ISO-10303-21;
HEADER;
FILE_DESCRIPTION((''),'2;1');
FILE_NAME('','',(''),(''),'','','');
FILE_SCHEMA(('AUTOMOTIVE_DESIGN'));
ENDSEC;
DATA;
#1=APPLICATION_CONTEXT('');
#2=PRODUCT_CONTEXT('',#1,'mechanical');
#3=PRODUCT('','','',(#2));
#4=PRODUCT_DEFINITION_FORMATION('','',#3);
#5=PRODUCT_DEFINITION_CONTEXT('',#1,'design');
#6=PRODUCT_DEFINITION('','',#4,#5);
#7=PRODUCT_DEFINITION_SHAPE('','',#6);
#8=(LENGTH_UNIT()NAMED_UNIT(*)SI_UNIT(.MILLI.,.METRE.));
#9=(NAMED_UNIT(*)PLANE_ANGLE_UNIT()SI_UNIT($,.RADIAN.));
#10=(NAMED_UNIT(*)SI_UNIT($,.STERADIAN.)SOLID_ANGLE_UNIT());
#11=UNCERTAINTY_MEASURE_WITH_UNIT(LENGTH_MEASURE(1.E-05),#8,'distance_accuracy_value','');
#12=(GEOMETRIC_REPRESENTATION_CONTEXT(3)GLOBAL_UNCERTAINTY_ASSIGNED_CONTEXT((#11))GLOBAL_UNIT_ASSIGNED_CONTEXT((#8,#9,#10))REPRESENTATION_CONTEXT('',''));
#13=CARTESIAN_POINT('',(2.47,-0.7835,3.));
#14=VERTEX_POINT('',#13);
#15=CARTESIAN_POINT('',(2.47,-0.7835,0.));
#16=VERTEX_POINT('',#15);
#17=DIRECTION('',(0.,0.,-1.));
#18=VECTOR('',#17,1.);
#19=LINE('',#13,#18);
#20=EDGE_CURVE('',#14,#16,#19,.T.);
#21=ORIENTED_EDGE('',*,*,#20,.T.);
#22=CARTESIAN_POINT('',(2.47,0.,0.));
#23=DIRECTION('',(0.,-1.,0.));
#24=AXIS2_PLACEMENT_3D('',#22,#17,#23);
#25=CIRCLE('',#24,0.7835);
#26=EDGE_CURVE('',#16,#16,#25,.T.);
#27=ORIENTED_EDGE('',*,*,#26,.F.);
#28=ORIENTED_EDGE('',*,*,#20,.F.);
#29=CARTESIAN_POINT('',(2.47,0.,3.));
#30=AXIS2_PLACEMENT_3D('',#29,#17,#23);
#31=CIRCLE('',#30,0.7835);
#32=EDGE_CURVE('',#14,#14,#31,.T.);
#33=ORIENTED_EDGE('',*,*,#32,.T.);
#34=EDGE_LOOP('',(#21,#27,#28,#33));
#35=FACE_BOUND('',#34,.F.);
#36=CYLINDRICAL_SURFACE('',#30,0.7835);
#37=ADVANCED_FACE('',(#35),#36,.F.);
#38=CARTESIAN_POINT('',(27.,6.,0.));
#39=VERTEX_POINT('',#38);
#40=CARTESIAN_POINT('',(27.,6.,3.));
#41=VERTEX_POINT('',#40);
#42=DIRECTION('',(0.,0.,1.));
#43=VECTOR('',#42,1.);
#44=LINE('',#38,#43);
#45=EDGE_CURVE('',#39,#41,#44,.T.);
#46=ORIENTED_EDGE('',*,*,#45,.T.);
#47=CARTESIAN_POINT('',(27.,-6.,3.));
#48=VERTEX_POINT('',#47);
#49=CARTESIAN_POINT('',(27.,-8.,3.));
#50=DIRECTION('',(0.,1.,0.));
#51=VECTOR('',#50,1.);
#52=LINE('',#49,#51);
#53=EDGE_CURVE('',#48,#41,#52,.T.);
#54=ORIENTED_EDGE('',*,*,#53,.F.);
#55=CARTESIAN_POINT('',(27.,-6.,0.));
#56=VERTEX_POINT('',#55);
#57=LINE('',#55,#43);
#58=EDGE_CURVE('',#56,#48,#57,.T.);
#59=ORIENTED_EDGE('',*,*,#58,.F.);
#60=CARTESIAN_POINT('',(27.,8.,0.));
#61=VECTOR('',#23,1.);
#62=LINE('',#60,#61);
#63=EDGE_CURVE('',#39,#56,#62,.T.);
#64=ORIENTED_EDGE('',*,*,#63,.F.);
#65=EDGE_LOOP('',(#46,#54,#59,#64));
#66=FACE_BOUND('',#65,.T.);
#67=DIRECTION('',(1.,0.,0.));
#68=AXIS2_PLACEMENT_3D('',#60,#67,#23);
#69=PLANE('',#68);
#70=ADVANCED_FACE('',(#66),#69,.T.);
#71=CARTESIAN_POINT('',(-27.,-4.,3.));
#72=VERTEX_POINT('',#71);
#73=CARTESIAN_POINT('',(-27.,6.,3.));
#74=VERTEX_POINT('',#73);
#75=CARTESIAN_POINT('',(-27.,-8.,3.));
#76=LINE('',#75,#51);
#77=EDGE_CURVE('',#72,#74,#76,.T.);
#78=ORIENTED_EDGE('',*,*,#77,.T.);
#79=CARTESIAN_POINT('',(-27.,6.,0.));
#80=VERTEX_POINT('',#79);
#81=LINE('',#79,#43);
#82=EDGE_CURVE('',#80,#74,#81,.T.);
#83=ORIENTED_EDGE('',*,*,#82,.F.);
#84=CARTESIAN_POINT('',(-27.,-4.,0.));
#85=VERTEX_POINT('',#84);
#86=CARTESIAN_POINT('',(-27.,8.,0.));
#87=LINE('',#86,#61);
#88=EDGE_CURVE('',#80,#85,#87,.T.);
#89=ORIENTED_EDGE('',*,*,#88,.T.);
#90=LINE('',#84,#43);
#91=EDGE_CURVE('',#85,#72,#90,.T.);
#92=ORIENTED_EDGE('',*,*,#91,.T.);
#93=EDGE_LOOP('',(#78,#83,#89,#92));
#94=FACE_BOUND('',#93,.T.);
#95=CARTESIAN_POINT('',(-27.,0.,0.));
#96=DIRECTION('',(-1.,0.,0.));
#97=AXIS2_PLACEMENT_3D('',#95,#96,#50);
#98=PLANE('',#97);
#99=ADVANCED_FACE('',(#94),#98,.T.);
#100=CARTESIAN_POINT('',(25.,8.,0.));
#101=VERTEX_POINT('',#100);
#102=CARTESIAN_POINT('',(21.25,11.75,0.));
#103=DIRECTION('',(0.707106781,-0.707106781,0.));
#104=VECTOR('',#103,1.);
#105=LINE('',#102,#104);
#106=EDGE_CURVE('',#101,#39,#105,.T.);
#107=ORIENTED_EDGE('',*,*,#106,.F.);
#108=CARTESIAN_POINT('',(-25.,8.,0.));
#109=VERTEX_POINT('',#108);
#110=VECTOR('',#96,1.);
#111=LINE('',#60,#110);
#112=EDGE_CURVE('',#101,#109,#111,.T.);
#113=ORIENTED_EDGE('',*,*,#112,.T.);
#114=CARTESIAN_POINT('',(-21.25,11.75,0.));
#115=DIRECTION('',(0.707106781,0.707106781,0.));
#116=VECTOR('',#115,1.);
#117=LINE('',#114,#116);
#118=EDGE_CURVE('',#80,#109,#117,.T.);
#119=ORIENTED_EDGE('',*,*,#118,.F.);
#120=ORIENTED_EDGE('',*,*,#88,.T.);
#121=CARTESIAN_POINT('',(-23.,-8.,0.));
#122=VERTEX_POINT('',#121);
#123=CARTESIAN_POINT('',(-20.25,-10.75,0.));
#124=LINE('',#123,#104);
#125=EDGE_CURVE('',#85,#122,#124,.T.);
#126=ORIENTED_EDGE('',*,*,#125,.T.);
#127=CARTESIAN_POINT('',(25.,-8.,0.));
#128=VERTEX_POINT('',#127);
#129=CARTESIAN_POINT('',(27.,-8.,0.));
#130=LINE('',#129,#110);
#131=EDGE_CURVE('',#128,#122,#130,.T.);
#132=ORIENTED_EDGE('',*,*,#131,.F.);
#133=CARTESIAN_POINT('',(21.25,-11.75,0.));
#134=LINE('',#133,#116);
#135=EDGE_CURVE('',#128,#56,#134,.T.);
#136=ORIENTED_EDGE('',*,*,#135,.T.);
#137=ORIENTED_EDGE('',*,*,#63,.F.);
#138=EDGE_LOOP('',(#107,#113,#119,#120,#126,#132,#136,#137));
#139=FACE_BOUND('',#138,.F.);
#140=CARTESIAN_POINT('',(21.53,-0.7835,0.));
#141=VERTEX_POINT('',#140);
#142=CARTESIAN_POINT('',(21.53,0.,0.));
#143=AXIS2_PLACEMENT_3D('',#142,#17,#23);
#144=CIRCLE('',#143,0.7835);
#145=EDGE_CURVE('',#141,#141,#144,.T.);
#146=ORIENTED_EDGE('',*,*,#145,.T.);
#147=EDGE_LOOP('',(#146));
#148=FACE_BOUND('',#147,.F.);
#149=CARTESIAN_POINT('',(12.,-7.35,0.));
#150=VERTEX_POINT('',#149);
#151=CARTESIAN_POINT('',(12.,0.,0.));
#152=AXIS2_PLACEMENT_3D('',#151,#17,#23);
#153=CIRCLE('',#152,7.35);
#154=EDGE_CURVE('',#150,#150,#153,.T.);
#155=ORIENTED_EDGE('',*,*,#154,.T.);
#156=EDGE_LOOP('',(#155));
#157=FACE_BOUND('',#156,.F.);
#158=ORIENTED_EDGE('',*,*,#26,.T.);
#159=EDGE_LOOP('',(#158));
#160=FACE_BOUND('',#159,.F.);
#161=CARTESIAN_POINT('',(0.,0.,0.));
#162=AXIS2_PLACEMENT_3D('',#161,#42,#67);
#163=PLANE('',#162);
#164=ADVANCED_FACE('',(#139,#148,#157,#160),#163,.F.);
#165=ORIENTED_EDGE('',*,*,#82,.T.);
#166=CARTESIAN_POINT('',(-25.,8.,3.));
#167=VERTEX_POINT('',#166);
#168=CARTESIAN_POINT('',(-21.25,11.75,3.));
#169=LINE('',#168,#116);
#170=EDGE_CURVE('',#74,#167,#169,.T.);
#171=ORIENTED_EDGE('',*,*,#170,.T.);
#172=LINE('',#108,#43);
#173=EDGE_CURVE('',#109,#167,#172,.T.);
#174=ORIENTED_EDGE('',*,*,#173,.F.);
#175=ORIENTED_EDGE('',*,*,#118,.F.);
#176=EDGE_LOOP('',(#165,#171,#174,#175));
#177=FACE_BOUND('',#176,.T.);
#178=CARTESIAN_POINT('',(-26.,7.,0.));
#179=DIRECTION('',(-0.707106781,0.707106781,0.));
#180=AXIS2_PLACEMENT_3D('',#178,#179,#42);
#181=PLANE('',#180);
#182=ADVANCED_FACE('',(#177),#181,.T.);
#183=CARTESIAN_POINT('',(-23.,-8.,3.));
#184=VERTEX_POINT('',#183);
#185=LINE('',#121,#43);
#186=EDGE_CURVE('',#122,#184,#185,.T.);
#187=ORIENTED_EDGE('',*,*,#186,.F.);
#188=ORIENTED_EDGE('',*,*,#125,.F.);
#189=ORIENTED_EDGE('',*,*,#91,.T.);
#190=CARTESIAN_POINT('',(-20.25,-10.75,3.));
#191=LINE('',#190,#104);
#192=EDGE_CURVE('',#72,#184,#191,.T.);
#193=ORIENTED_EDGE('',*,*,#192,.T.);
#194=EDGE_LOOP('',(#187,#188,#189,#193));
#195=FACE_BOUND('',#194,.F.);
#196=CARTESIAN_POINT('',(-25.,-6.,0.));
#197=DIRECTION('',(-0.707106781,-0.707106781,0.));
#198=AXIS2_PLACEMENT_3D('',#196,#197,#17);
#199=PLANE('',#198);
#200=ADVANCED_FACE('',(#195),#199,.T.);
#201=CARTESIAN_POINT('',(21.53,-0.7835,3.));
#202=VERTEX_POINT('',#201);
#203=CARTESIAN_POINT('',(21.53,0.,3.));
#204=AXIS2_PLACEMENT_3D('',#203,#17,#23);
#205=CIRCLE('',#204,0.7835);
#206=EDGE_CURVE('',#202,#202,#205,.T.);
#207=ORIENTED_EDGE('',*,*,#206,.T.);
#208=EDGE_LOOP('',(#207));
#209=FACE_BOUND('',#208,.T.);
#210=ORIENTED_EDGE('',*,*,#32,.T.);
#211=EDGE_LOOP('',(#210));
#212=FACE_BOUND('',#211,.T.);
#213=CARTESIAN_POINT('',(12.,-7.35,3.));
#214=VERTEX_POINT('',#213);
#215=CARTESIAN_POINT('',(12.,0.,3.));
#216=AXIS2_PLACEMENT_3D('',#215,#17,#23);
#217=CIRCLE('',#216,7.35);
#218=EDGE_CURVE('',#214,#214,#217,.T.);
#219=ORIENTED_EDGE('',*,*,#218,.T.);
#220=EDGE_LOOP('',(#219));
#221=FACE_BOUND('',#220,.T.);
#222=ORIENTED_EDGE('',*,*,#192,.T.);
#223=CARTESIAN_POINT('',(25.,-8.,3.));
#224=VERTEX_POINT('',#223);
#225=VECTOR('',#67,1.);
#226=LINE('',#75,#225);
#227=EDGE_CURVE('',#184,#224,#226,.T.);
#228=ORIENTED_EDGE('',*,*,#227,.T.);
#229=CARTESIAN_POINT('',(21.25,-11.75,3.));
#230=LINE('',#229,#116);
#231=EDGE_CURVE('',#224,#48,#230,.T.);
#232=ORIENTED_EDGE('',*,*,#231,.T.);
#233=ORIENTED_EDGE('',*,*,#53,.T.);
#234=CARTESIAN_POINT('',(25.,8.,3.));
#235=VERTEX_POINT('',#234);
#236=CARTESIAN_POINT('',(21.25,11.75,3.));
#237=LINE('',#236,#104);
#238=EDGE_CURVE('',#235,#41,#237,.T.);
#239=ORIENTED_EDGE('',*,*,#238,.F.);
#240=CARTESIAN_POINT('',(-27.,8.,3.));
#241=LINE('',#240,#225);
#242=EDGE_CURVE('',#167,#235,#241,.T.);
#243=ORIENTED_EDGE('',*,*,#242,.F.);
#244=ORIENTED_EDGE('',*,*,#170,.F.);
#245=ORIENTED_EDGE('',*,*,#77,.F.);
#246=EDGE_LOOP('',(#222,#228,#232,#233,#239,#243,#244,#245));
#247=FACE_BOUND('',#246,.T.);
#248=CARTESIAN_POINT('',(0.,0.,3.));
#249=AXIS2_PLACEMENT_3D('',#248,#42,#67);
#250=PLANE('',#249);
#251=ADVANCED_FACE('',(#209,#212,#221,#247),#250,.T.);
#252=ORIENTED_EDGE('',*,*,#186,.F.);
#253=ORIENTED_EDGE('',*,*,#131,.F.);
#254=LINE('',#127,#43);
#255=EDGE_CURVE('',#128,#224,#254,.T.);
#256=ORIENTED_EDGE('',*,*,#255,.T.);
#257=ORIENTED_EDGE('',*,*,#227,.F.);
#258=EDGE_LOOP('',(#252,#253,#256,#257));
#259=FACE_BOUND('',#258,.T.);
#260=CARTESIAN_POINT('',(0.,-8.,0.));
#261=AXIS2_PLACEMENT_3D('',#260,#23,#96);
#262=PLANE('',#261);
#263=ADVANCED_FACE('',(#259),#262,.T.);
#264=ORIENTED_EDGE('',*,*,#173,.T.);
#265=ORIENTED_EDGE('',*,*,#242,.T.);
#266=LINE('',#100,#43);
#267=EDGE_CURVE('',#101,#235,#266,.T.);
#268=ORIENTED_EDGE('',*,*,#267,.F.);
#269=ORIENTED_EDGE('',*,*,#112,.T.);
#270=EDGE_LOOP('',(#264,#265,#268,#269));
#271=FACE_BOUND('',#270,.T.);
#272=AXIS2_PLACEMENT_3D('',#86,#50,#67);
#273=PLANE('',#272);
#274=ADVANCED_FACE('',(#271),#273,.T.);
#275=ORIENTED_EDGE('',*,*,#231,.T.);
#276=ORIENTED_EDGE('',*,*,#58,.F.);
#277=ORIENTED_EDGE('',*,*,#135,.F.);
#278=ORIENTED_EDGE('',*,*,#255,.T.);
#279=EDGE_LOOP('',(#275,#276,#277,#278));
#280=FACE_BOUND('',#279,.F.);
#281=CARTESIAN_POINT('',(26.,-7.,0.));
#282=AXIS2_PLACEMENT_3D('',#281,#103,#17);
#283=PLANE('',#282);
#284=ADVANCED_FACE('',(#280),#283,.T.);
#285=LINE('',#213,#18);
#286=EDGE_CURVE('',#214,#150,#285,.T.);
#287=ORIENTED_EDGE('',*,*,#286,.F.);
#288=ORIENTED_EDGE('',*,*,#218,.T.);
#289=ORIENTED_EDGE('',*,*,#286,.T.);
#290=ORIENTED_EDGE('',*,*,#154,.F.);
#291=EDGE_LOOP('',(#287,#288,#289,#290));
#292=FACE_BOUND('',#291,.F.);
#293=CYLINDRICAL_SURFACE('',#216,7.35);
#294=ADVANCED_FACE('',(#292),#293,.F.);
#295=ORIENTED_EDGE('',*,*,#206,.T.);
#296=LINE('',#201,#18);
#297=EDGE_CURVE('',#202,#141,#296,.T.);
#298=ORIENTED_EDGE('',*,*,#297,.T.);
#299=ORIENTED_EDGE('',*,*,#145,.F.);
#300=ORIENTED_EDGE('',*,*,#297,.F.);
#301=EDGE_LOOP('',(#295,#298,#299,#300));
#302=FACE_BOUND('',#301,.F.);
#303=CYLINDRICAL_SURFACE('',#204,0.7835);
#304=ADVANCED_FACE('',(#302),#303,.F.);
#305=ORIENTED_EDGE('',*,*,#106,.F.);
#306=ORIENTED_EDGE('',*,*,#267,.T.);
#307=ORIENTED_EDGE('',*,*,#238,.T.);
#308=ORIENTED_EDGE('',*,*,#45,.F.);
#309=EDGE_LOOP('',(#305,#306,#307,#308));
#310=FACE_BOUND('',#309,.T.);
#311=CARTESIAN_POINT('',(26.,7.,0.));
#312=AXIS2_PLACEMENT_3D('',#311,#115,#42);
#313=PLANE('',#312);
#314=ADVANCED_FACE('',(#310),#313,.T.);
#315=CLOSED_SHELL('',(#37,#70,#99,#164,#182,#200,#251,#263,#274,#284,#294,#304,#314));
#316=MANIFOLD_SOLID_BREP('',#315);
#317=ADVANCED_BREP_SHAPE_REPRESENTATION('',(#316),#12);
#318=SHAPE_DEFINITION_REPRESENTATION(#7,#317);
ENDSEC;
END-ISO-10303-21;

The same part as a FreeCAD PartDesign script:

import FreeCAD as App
import Part
import Sketcher


def edges_at(feature, points):
    """Names of the edges that pass closest to the given points."""
    edges = feature.Shape.Edges
    near = lambda p: min(range(len(edges)), key=lambda i: edges[i].distToShape(Part.Vertex(*p))[0])
    return sorted({f"Edge{near(p) + 1}" for p in points})


def add_polygon(sketch, points):
    """Adds a closed chain of lines whose ends are joined by coincident constraints."""
    first, n = sketch.GeometryCount, len(points)
    for a, b in zip(points, points[1:] + points[:1]):
        sketch.addGeometry(Part.LineSegment(App.Vector(*a, 0), App.Vector(*b, 0)), False)
    for i in range(n):
        sketch.addConstraint(Sketcher.Constraint("Coincident", first + i, 2, first + (i + 1) % n, 1))

doc = App.newDocument("Part")
params = doc.addObject("Spreadsheet::Sheet", "Params")
for row, (alias, value) in enumerate([
    ("sketch1_width", "54 mm"),
    ("sketch1_height", "16 mm"),
    ("pad1_length", "3 mm"),
    ("sketch2_diameter", "14.7 mm"),
    ("hole_diameter", "14.7 mm"),
    ("chamfer_size", "2 mm"),
    ("chamfer2_size", "4 mm"),
    ("hole2_diameter", "1.567 mm"),
], start=1):
    params.set(f"A{row}", alias)
    params.set(f"B{row}", "=" + value)
    params.setAlias(f"B{row}", alias)

body = doc.addObject("PartDesign::Body", "Body")

sketch1 = body.newObject("Sketcher::SketchObject", "Sketch")
sketch1.AttachmentSupport = (doc.getObject("XY_Plane"), [""])
sketch1.MapMode = "FlatFace"
add_polygon(sketch1, [(-27, 8), (-27, -8), (27, -8), (27, 8)])
sketch1.addConstraint(Sketcher.Constraint("Vertical", 0))
sketch1.addConstraint(Sketcher.Constraint("Horizontal", 1))
sketch1.addConstraint(Sketcher.Constraint("Vertical", 2))
sketch1.addConstraint(Sketcher.Constraint("Horizontal", 3))
sketch1.addConstraint(Sketcher.Constraint("Symmetric", 0, 2, 2, 2, -1, 1))
sketch1.addConstraint(Sketcher.Constraint("DistanceX", 1, 1, 1, 2, 54.0))
sketch1.addConstraint(Sketcher.Constraint("DistanceY", 0, 2, 0, 1, 16.0))
sketch1.setExpression("Constraints[9]", "Params.sketch1_width")
sketch1.setExpression("Constraints[10]", "Params.sketch1_height")
pad1 = body.newObject("PartDesign::Pad", "Pad")
pad1.Profile = sketch1
pad1.setExpression("Length", "Params.pad1_length")

sketch2 = body.newObject("Sketcher::SketchObject", "Sketch001")
sketch2.AttachmentSupport = (doc.getObject("XY_Plane"), [""])
sketch2.MapMode = "FlatFace"
sketch2.AttachmentOffset = App.Placement(App.Vector(0, 0, 3), App.Rotation())
sketch2.addGeometry(Part.Circle(App.Vector(12, 0, 0), App.Vector(0, 0, 1), 7.35), False)
sketch2.addConstraint(Sketcher.Constraint("PointOnObject", 0, 3, -1))
sketch2.addConstraint(Sketcher.Constraint("Diameter", 0, 14.7))
sketch2.addConstraint(Sketcher.Constraint("DistanceX", -1, 1, 0, 3, 12.0))
sketch2.setExpression("Constraints[1]", "Params.sketch2_diameter")
doc.recompute()
hole = body.newObject("PartDesign::Hole", "Hole")
hole.Profile = sketch2
hole.ThreadType = "None"
hole.setExpression("Diameter", "Params.hole_diameter")
hole.DepthType = "ThroughAll"
doc.recompute()

chamfer = body.newObject("PartDesign::Chamfer", "Chamfer")
chamfer.Base = (hole, edges_at(hole, [(-27, 8, 1.5), (27, 8, 1.5), (27, -8, 1.5)]))
chamfer.setExpression("Size", "Params.chamfer_size")
doc.recompute()

chamfer2 = body.newObject("PartDesign::Chamfer", "Chamfer001")
chamfer2.Base = (chamfer, edges_at(chamfer, [(-27, -8, 1.5)]))
chamfer2.setExpression("Size", "Params.chamfer2_size")

sketch3 = body.newObject("Sketcher::SketchObject", "Sketch002")
sketch3.AttachmentSupport = (doc.getObject("XY_Plane"), [""])
sketch3.MapMode = "FlatFace"
sketch3.AttachmentOffset = App.Placement(App.Vector(0, 0, 3), App.Rotation())
sketch3.addGeometry(Part.Circle(App.Vector(2.47, 0, 0), App.Vector(0, 0, 1), 0.7835), False)
sketch3.addGeometry(Part.Circle(App.Vector(21.53, 0, 0), App.Vector(0, 0, 1), 0.7835), False)
sketch3.addConstraint(Sketcher.Constraint("Equal", 0, 1))
sketch3.addConstraint(Sketcher.Constraint("PointOnObject", 0, 3, -1))
sketch3.addConstraint(Sketcher.Constraint("PointOnObject", 1, 3, -1))
sketch3.addConstraint(Sketcher.Constraint("Diameter", 0, 1.567))
sketch3.addConstraint(Sketcher.Constraint("DistanceX", -1, 1, 0, 3, 2.47))
sketch3.addConstraint(Sketcher.Constraint("DistanceX", -1, 1, 1, 3, 21.53))
doc.recompute()
hole2 = body.newObject("PartDesign::Hole", "Hole001")
hole2.Profile = sketch3
hole2.ThreadType = "None"
hole2.setExpression("Diameter", "Params.hole2_diameter")
hole2.DepthType = "ThroughAll"

doc.recompute()
